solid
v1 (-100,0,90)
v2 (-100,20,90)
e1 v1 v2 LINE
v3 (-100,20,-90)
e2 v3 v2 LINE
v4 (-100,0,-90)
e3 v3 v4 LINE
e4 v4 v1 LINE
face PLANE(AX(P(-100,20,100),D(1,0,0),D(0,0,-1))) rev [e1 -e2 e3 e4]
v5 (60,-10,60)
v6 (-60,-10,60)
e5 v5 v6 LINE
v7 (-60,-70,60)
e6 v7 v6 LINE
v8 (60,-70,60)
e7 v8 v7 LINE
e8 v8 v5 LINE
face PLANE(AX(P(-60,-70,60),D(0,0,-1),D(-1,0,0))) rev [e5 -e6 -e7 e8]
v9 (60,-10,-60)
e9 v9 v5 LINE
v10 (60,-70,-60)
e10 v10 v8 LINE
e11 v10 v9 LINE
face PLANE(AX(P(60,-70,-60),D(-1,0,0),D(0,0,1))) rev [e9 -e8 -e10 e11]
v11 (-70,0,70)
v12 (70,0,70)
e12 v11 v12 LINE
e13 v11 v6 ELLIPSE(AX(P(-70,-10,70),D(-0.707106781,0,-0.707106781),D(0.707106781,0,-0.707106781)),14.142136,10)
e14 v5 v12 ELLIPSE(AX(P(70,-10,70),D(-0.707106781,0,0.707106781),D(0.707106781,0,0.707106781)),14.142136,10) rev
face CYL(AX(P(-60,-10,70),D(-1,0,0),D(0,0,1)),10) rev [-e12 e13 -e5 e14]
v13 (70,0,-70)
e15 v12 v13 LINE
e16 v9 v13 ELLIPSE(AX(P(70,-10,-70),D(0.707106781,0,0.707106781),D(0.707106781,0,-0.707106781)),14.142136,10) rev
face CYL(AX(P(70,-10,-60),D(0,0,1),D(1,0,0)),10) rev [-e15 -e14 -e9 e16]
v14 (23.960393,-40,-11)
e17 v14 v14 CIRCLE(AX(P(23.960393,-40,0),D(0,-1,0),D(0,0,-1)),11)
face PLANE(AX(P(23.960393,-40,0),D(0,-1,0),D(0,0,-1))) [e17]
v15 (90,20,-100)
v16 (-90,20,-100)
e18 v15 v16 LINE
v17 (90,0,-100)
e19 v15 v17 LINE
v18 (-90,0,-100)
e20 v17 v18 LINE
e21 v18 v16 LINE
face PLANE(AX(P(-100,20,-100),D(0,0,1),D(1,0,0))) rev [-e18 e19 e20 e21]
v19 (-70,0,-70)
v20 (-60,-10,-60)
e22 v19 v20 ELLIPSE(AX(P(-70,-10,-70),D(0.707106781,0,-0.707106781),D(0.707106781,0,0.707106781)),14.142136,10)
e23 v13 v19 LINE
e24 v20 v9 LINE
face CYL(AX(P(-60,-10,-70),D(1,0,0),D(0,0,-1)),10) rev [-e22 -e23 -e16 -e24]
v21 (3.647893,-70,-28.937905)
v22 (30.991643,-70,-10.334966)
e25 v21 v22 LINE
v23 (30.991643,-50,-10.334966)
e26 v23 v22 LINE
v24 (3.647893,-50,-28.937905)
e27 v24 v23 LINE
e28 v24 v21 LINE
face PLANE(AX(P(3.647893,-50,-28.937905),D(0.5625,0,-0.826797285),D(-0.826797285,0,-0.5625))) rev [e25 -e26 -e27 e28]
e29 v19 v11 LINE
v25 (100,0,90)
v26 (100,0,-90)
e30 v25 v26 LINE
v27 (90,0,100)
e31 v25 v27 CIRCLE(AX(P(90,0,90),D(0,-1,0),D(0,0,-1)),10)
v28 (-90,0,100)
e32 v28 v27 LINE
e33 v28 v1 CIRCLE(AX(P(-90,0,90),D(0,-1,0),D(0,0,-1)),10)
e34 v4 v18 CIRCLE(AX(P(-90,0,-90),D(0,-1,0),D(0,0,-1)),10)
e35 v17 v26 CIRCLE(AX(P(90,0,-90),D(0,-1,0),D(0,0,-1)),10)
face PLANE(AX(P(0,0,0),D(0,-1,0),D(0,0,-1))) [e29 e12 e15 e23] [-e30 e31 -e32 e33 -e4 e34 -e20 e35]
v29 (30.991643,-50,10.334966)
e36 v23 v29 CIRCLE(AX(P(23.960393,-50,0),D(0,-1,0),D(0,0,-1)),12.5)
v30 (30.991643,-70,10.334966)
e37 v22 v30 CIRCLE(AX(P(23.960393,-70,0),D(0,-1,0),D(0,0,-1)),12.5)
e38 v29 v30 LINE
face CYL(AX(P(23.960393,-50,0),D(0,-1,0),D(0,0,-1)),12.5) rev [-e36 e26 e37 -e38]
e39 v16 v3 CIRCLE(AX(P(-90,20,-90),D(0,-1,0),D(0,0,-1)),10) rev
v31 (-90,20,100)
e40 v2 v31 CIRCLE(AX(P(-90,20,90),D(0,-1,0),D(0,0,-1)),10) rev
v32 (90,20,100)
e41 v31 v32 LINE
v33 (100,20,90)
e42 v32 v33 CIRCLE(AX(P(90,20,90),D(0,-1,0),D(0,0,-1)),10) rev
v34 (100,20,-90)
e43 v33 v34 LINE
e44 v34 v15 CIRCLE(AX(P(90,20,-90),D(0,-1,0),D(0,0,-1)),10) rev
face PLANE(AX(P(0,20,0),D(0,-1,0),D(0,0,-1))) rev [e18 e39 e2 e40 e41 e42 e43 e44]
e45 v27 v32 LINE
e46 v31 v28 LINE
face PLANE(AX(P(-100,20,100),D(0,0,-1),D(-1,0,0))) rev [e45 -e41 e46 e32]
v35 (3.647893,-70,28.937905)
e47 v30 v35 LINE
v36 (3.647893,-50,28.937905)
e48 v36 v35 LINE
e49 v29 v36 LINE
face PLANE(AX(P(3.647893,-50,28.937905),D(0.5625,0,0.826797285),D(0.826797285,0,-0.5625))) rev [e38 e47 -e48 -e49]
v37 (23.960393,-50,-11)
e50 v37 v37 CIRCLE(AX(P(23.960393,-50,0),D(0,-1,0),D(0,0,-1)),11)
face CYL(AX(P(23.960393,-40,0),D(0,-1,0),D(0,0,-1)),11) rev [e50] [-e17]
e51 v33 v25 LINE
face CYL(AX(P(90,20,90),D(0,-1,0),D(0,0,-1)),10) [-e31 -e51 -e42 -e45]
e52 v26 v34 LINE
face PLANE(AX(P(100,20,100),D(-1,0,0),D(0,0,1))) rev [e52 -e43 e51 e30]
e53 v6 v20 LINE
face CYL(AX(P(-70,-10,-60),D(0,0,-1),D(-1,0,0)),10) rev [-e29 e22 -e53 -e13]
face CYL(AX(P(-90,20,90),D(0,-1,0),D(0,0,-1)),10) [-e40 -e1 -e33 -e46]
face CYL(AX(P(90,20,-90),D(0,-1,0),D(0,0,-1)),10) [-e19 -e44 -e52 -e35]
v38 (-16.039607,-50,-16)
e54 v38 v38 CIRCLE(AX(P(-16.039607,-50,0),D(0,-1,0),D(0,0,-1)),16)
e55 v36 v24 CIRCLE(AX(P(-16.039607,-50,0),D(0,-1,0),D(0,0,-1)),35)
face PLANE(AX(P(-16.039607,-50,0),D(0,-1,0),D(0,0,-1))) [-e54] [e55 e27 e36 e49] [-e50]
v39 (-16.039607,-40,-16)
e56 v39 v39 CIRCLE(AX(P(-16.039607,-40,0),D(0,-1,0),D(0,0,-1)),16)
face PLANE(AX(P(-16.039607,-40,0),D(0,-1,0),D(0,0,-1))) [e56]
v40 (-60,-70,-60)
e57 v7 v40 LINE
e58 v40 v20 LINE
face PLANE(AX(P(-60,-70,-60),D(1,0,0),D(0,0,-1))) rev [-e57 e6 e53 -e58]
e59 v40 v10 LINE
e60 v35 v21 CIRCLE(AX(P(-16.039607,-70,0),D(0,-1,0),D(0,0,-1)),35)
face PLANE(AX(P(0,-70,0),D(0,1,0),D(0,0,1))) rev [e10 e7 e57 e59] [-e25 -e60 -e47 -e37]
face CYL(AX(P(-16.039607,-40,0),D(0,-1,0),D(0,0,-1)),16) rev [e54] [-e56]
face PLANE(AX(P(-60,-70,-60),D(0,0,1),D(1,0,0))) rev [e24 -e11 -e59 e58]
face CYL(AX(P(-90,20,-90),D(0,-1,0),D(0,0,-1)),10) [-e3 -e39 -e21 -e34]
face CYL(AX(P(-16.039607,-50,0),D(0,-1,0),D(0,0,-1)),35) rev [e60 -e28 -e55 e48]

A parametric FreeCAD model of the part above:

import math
import FreeCAD as App
import Part
import Sketcher


def edges_at(feature, points):
    """Names of the edges that pass closest to the given points."""
    edges = feature.Shape.Edges
    near = lambda p: min(range(len(edges)), key=lambda i: edges[i].distToShape(Part.Vertex(*p))[0])
    return sorted({f"Edge{near(p) + 1}" for p in points})

doc = App.newDocument("Part")
body = doc.addObject("PartDesign::Body", "Body")

# Sketch on XZ plane
sketch1 = doc.addObject("Sketcher::SketchObject", "Sketch")
body.addObject(sketch1)
sketch1.AttachmentSupport = (doc.XZ_Plane, [""])
sketch1.MapMode = "FlatFace"
sketch1.addGeometry(Part.LineSegment(App.Vector(-100, -100, 0), App.Vector(-100, 100, 0)), False)
sketch1.addGeometry(Part.LineSegment(App.Vector(-100, 100, 0), App.Vector(100, 100, 0)), False)
sketch1.addGeometry(Part.LineSegment(App.Vector(100, 100, 0), App.Vector(100, -100, 0)), False)
sketch1.addGeometry(Part.LineSegment(App.Vector(100, -100, 0), App.Vector(-100, -100, 0)), False)
sketch1.addConstraint(Sketcher.Constraint("Coincident", 0, 2, 1, 1))
sketch1.addConstraint(Sketcher.Constraint("Coincident", 1, 2, 2, 1))
sketch1.addConstraint(Sketcher.Constraint("Coincident", 2, 2, 3, 1))
sketch1.addConstraint(Sketcher.Constraint("Coincident", 3, 2, 0, 1))
sketch1.addConstraint(Sketcher.Constraint("Vertical", 0))
sketch1.addConstraint(Sketcher.Constraint("Horizontal", 1))
sketch1.addConstraint(Sketcher.Constraint("Vertical", 2))
sketch1.addConstraint(Sketcher.Constraint("Horizontal", 3))
sketch1.addConstraint(Sketcher.Constraint("Symmetric", 0, 2, 2, 2, -1, 1))
sketch1.addConstraint(Sketcher.Constraint("Equal", 3, 0))
sketch1.addConstraint(Sketcher.Constraint("DistanceX", 1, 1, 1, 2, 200.0))
pad1 = doc.addObject("PartDesign::Pad", "Pad")
body.addObject(pad1)
pad1.Profile = sketch1
pad1.Length = 20
pad1.Reversed = True

# Sketch on XZ plane
sketch2 = doc.addObject("Sketcher::SketchObject", "Sketch001")
body.addObject(sketch2)
sketch2.AttachmentSupport = (doc.XZ_Plane, [""])
sketch2.MapMode = "FlatFace"
sketch2.addGeometry(Part.LineSegment(App.Vector(-60, 60, 0), App.Vector(-60, -60, 0)), False)
sketch2.addGeometry(Part.LineSegment(App.Vector(-60, -60, 0), App.Vector(60, -60, 0)), False)
sketch2.addGeometry(Part.LineSegment(App.Vector(60, -60, 0), App.Vector(60, 60, 0)), False)
sketch2.addGeometry(Part.LineSegment(App.Vector(60, 60, 0), App.Vector(-60, 60, 0)), False)
sketch2.addConstraint(Sketcher.Constraint("Coincident", 0, 2, 1, 1))
sketch2.addConstraint(Sketcher.Constraint("Coincident", 1, 2, 2, 1))
sketch2.addConstraint(Sketcher.Constraint("Coincident", 2, 2, 3, 1))
sketch2.addConstraint(Sketcher.Constraint("Coincident", 3, 2, 0, 1))
sketch2.addConstraint(Sketcher.Constraint("Vertical", 0))
sketch2.addConstraint(Sketcher.Constraint("Horizontal", 1))
sketch2.addConstraint(Sketcher.Constraint("Vertical", 2))
sketch2.addConstraint(Sketcher.Constraint("Horizontal", 3))
sketch2.addConstraint(Sketcher.Constraint("Symmetric", 0, 2, 2, 2, -1, 1))
sketch2.addConstraint(Sketcher.Constraint("Equal", 3, 0))
sketch2.addConstraint(Sketcher.Constraint("DistanceX", 1, 1, 1, 2, 120.0))
pad2 = doc.addObject("PartDesign::Pad", "Pad001")
body.addObject(pad2)
pad2.Profile = sketch2
pad2.Length = 70

# Sketch on XZ plane
sketch3 = doc.addObject("Sketcher::SketchObject", "Sketch002")
body.addObject(sketch3)
sketch3.AttachmentSupport = (doc.XZ_Plane, [""])
sketch3.MapMode = "FlatFace"
sketch3.AttachmentOffset = App.Placement(App.Vector(0, 0, 70), App.Rotation())
sketch3.addGeometry(Part.LineSegment(App.Vector(31, 10, 0), App.Vector(4, 29, 0)), False)
sketch3.addGeometry(Part.ArcOfCircle(Part.Circle(App.Vector(-16, 0, 0), App.Vector(0, 0, 1), 35), math.radians(56), math.radians(304)), False)
sketch3.addGeometry(Part.LineSegment(App.Vector(4, -29, 0), App.Vector(31, -10, 0)), False)
sketch3.addGeometry(Part.ArcOfCircle(Part.Circle(App.Vector(24, 0, 0), App.Vector(0, 0, 1), 12), math.radians(-56), math.radians(56)), False)
sketch3.addConstraint(Sketcher.Constraint("Tangent", 0, 2, 1, 1))
sketch3.addConstraint(Sketcher.Constraint("Tangent", 1, 2, 2, 1))
sketch3.addConstraint(Sketcher.Constraint("Tangent", 2, 2, 3, 1))
sketch3.addConstraint(Sketcher.Constraint("Tangent", 3, 2, 0, 1))
sketch3.addConstraint(Sketcher.Constraint("Symmetric", 0, 2, 1, 2, -1))
sketch3.addConstraint(Sketcher.Constraint("Radius", 1, 35.0))
sketch3.addConstraint(Sketcher.Constraint("Radius", 3, 12.5))
sketch3.addConstraint(Sketcher.Constraint("DistanceX", 1, 3, 3, 3, 40.0))
sketch3.addConstraint(Sketcher.Constraint("DistanceX", 1, 3, -1, 1, 16.039607))
pocket1 = doc.addObject("PartDesign::Pocket", "Pocket")
body.addObject(pocket1)
pocket1.Profile = sketch3
pocket1.Length = 20

# Sketch on XZ plane
sketch4 = doc.addObject("Sketcher::SketchObject", "Sketch003")
body.addObject(sketch4)
sketch4.AttachmentSupport = (doc.XZ_Plane, [""])
sketch4.MapMode = "FlatFace"
sketch4.AttachmentOffset = App.Placement(App.Vector(0, 0, 50), App.Rotation())
sketch4.addGeometry(Part.Circle(App.Vector(-16, 0, 0), App.Vector(0, 0, 1), 16), False)
sketch4.addGeometry(Part.Circle(App.Vector(24, 0, 0), App.Vector(0, 0, 1), 11), False)
sketch4.addConstraint(Sketcher.Constraint("PointOnObject", 0, 3, -1))
sketch4.addConstraint(Sketcher.Constraint("PointOnObject", 1, 3, -1))
sketch4.addConstraint(Sketcher.Constraint("Diameter", 0, 32.0))
sketch4.addConstraint(Sketcher.Constraint("Diameter", 1, 22.0))
sketch4.addConstraint(Sketcher.Constraint("DistanceX", 0, 3, 1, 3, 40.0))
sketch4.addConstraint(Sketcher.Constraint("DistanceX", 0, 3, -1, 1, 16.039607))
pocket2 = doc.addObject("PartDesign::Pocket", "Pocket001")
body.addObject(pocket2)
pocket2.Profile = sketch4
pocket2.Length = 10
doc.recompute()

fillet = doc.addObject("PartDesign::Fillet", "Fillet")
body.addObject(fillet)
fillet.Base = (pocket2, edges_at(pocket2, [
    (100, 10, 100),
    (-100, 10, 100),
    (-100, 10, -100),
    (100, 10, -100),
]))
fillet.Radius = 10
doc.recompute()

fillet2 = doc.addObject("PartDesign::Fillet", "Fillet001")
body.addObject(fillet2)
fillet2.Base = (fillet, edges_at(fillet, [
    (60, 0, 0),
    (0, 0, 60),
    (-60, 0, 0),
    (0, 0, -60),
]))
fillet2.Radius = 10

doc.recompute()
